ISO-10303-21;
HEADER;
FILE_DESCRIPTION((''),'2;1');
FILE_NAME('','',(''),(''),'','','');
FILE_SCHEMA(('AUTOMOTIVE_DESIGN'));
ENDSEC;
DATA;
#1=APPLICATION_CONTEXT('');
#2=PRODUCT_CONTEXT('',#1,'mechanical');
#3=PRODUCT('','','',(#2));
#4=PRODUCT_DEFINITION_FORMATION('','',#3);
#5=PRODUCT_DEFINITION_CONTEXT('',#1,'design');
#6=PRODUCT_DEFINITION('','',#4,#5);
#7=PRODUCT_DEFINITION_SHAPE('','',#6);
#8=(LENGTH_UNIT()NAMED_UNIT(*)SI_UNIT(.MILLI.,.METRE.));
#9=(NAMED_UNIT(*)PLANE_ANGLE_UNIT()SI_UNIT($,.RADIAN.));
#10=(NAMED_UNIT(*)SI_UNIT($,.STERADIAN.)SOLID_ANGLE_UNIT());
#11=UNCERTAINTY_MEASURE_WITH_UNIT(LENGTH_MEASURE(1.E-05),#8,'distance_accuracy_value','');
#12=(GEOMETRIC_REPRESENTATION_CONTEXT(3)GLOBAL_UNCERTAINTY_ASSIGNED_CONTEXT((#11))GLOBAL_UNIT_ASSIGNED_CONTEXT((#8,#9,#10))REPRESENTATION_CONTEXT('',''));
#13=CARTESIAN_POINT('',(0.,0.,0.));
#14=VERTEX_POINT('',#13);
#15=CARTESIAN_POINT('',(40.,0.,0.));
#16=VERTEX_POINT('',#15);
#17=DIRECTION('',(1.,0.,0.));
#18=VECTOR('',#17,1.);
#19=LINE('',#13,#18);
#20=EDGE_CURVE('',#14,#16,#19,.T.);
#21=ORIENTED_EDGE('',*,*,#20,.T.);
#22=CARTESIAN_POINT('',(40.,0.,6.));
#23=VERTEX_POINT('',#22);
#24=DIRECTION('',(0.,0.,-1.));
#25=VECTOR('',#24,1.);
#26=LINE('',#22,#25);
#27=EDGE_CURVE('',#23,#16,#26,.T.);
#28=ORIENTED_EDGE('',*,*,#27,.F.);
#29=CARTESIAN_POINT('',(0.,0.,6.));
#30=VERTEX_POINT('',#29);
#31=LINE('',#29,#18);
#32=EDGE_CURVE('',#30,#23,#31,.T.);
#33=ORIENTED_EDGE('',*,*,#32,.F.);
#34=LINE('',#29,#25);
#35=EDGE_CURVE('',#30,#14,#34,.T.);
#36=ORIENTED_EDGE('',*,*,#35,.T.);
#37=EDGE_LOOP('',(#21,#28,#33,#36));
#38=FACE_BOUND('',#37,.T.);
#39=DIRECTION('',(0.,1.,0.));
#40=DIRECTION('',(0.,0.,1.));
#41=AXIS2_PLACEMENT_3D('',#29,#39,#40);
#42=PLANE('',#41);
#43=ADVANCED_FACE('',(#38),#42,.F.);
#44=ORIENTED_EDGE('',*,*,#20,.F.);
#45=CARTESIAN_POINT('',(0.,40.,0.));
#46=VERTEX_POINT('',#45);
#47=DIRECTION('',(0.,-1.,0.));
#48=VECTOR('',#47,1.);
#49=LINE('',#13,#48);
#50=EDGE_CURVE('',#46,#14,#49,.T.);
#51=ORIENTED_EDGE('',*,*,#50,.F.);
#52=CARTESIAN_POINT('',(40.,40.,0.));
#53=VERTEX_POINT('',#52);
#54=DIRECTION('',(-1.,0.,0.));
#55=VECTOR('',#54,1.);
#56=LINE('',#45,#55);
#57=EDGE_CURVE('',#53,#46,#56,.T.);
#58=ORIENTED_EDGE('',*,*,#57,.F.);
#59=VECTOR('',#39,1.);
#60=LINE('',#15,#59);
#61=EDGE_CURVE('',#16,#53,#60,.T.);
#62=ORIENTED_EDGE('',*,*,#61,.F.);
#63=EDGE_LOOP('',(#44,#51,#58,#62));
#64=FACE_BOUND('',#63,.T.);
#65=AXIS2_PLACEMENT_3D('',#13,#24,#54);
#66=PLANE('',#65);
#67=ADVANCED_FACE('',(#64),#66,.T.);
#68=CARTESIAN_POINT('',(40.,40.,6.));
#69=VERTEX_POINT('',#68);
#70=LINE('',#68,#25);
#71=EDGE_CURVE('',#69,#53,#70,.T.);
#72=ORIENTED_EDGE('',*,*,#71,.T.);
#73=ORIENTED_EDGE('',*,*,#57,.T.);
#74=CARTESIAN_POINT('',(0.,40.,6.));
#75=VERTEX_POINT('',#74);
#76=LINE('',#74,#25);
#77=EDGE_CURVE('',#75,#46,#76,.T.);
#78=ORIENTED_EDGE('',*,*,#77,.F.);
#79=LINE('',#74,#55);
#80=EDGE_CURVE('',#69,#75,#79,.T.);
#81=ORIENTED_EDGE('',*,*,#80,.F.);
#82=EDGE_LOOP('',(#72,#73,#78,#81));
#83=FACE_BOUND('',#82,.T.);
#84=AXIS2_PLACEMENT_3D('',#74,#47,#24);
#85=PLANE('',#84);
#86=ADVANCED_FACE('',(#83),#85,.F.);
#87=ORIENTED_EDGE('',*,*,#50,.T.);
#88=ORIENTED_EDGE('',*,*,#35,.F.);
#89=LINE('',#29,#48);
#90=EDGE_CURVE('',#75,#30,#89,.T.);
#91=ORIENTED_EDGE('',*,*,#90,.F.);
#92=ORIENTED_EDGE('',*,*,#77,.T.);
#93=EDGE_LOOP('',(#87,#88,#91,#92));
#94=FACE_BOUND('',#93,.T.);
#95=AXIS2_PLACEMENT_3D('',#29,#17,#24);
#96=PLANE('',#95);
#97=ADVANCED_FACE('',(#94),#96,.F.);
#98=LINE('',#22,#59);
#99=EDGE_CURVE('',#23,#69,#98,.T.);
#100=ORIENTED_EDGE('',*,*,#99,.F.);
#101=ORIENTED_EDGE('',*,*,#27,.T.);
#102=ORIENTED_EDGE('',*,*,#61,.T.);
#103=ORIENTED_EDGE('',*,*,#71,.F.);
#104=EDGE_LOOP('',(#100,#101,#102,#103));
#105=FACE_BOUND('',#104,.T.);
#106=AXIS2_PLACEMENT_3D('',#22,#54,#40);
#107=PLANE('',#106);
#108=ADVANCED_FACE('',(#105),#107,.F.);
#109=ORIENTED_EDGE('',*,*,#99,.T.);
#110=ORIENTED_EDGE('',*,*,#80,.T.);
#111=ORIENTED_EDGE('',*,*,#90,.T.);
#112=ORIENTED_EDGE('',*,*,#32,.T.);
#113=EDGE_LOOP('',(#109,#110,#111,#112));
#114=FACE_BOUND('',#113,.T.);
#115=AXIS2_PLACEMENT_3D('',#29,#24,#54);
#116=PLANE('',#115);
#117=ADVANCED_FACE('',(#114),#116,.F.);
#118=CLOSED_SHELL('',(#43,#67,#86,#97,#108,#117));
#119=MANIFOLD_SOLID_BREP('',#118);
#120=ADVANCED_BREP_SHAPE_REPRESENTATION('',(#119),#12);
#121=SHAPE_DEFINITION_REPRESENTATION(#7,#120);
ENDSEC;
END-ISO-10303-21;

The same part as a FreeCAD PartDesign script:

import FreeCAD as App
import Part
import Sketcher
from FreeCAD import Vector
Q = App.Units.Quantity


def add_polygon(sketch, points):
    """Adds a closed chain of lines whose ends are joined by coincident constraints."""
    first, n = sketch.GeometryCount, len(points)
    for a, b in zip(points, points[1:] + points[:1]):
        sketch.addGeometry(Part.LineSegment(App.Vector(*a, 0), App.Vector(*b, 0)), False)
    for i in range(n):
        sketch.addConstraint(Sketcher.Constraint("Coincident", first + i, 2, first + (i + 1) % n, 1))

doc = App.newDocument("Part")
params = doc.addObject("Spreadsheet::Sheet", "Params")
for row, (alias, value) in enumerate([
    ("sketch1_width", "40 mm"),
    ("pad1_length", "6 mm"),
], start=1):
    params.set(f"A{row}", alias)
    params.set(f"B{row}", "=" + value)
    params.setAlias(f"B{row}", alias)

body = doc.addObject("PartDesign::Body", "Body")

sketch1 = doc.addObject("Sketcher::SketchObject", "Sketch")
body.addObject(sketch1)
sketch1.AttachmentSupport = (doc.XY_Plane, [""])
sketch1.MapMode = "FlatFace"
add_polygon(sketch1, [(0, 40), (0, 0), (40, 0), (40, 40)])
sketch1.addConstraint([
    Sketcher.Constraint("Vertical", 0),
    Sketcher.Constraint("Horizontal", 1),
    Sketcher.Constraint("Vertical", 2),
    Sketcher.Constraint("Horizontal", 3),
    Sketcher.Constraint("Coincident", 0, 2, -1, 1),
    Sketcher.Constraint("Equal", 3, 0),
    Sketcher.Constraint("DistanceX", 1, 1, 1, 2, Q("40 mm")),
])
sketch1.setExpression("Constraints[10]", "Params.sketch1_width")
pad1 = doc.addObject("PartDesign::Pad", "Pad")
body.addObject(pad1)
pad1.Profile = sketch1
pad1.setExpression("Length", "Params.pad1_length")

doc.recompute()
